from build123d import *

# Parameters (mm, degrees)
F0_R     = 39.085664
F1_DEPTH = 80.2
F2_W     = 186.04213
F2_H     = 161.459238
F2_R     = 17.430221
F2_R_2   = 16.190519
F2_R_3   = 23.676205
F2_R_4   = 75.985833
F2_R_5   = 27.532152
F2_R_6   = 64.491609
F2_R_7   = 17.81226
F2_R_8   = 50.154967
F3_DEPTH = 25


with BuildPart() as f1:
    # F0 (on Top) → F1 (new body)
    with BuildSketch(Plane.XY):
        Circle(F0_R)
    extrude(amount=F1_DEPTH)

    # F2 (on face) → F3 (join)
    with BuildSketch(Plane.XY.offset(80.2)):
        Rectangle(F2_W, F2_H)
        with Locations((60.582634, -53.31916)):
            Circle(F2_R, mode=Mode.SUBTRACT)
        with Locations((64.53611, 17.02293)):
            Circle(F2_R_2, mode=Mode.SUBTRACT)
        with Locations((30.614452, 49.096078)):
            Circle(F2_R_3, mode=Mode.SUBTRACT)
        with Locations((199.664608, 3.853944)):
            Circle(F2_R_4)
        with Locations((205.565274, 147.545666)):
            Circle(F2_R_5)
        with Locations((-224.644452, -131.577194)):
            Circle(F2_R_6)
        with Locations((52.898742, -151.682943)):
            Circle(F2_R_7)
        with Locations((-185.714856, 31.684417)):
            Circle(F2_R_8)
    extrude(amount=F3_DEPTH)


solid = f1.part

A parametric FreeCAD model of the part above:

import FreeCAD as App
import Part
import Sketcher
from FreeCAD import Vector
Q = App.Units.Quantity


def add_polygon(sketch, points):
    """Adds a closed chain of lines whose ends are joined by coincident constraints."""
    first, n = sketch.GeometryCount, len(points)
    for a, b in zip(points, points[1:] + points[:1]):
        sketch.addGeometry(Part.LineSegment(App.Vector(*a, 0), App.Vector(*b, 0)), False)
    for i in range(n):
        sketch.addConstraint(Sketcher.Constraint("Coincident", first + i, 2, first + (i + 1) % n, 1))

doc = App.newDocument("Part")
params = doc.addObject("Spreadsheet::Sheet", "Params")
for row, (alias, value) in enumerate([
    ("pad1_length", "80.2 mm"),
    ("pad2_length", "25 mm"),
], start=1):
    params.set(f"A{row}", alias)
    params.set(f"B{row}", "=" + value)
    params.setAlias(f"B{row}", alias)

body = doc.addObject("PartDesign::Body", "Body")
body.AllowCompound = True

sketch1 = body.newObject("Sketcher::SketchObject", "Sketch")
sketch1.AttachmentSupport = (doc.getObject("XY_Plane"), [""])
sketch1.MapMode = "FlatFace"
sketch1.addGeometry(Part.Circle(Vector(0, 0, 0), Vector(0, 0, 1), 39.085664), False)
sketch1.addConstraint([
    Sketcher.Constraint("Coincident", 0, 3, -1, 1),
    Sketcher.Constraint("Diameter", 0, Q("78.171328 mm")),
])
pad1 = body.newObject("PartDesign::Pad", "Pad")
pad1.Profile = sketch1
pad1.setExpression("Length", "Params.pad1_length")

sketch2 = body.newObject("Sketcher::SketchObject", "Sketch001")
sketch2.AttachmentSupport = (doc.getObject("XY_Plane"), [""])
sketch2.MapMode = "FlatFace"
sketch2.AttachmentOffset = App.Placement(Vector(0, 0, 80.2), App.Rotation())
add_polygon(sketch2, [(-93.021065, 80.729619), (-93.021065, -80.729619), (93.021065, -80.729619), (93.021065, 80.729619)])
sketch2.addGeometry(Part.Circle(Vector(60.582634, -53.31916, 0), Vector(0, 0, 1), 17.430221), False)
sketch2.addGeometry(Part.Circle(Vector(30.614452, 49.096078, 0), Vector(0, 0, 1), 23.676205), False)
sketch2.addGeometry(Part.Circle(Vector(64.53611, 17.02293, 0), Vector(0, 0, 1), 16.190519), False)
sketch2.addGeometry(Part.Circle(Vector(199.664608, 3.853944, 0), Vector(0, 0, 1), 75.985833), False)
sketch2.addGeometry(Part.Circle(Vector(205.565274, 147.545666, 0), Vector(0, 0, 1), 27.532152), False)
sketch2.addGeometry(Part.Circle(Vector(-224.644452, -131.577194, 0), Vector(0, 0, 1), 64.491609), False)
sketch2.addGeometry(Part.Circle(Vector(52.898742, -151.682943, 0), Vector(0, 0, 1), 17.81226), False)
sketch2.addGeometry(Part.Circle(Vector(-185.714856, 31.684417, 0), Vector(0, 0, 1), 50.154967), False)
sketch2.addConstraint([
    Sketcher.Constraint("Vertical", 0),
    Sketcher.Constraint("Horizontal", 1),
    Sketcher.Constraint("Vertical", 2),
    Sketcher.Constraint("Horizontal", 3),
    Sketcher.Constraint("Symmetric", 0, 2, 2, 2, -1, 1),
    Sketcher.Constraint("Diameter", 5, Q("47.35241 mm")),
    Sketcher.Constraint("Diameter", 9, Q("128.983218 mm")),
    Sketcher.Constraint("Diameter", 10, Q("35.62452 mm")),
    Sketcher.Constraint("Diameter", 4, Q("34.860442 mm")),
    Sketcher.Constraint("Diameter", 6, Q("32.381038 mm")),
    Sketcher.Constraint("Diameter", 7, Q("151.971666 mm")),
    Sketcher.Constraint("Diameter", 8, Q("55.064304 mm")),
    Sketcher.Constraint("Diameter", 11, Q("100.309934 mm")),
    Sketcher.Constraint("DistanceX", 1, 1, 1, 2, Q("186.04213 mm")),
    Sketcher.Constraint("DistanceY", 0, 2, 0, 1, Q("161.459238 mm")),
    Sketcher.Constraint("DistanceX", 11, 3, 10, 3, Q("238.613598 mm")),
    Sketcher.Constraint("DistanceX", 0, 2, 4, 3, Q("153.603699 mm")),
    Sketcher.Constraint("DistanceY", 4, 3, -1, 1, Q("53.31916 mm")),
    Sketcher.Constraint("DistanceX", -1, 1, 5, 3, Q("30.614452 mm")),
    Sketcher.Constraint("DistanceX", -1, 1, 6, 3, Q("64.53611 mm")),
    Sketcher.Constraint("DistanceY", -1, 1, 6, 3, Q("17.02293 mm")),
    Sketcher.Constraint("DistanceX", 9, 3, -1, 1, Q("224.644452 mm")),
    Sketcher.Constraint("DistanceY", 6, 3, 5, 3, Q("32.073148 mm")),
    Sketcher.Constraint("DistanceY", 7, 3, 8, 3, Q("143.691722 mm")),
    Sketcher.Constraint("DistanceX", 5, 3, 8, 3, Q("174.950822 mm")),
    Sketcher.Constraint("DistanceY", 5, 3, 8, 3, Q("98.449588 mm")),
    Sketcher.Constraint("DistanceY", 9, 3, 5, 3, Q("180.673272 mm")),
    Sketcher.Constraint("DistanceX", 9, 3, 7, 3, Q("424.30906 mm")),
    Sketcher.Constraint("DistanceX", 5, 3, 10, 3, Q("22.28429 mm")),
    Sketcher.Constraint("DistanceY", 10, 3, 5, 3, Q("200.779021 mm")),
    Sketcher.Constraint("DistanceY", 9, 3, 11, 3, Q("163.261611 mm")),
])
pad2 = body.newObject("PartDesign::Pad", "Pad001")
pad2.Profile = sketch2
pad2.setExpression("Length", "Params.pad2_length")

doc.recompute()
